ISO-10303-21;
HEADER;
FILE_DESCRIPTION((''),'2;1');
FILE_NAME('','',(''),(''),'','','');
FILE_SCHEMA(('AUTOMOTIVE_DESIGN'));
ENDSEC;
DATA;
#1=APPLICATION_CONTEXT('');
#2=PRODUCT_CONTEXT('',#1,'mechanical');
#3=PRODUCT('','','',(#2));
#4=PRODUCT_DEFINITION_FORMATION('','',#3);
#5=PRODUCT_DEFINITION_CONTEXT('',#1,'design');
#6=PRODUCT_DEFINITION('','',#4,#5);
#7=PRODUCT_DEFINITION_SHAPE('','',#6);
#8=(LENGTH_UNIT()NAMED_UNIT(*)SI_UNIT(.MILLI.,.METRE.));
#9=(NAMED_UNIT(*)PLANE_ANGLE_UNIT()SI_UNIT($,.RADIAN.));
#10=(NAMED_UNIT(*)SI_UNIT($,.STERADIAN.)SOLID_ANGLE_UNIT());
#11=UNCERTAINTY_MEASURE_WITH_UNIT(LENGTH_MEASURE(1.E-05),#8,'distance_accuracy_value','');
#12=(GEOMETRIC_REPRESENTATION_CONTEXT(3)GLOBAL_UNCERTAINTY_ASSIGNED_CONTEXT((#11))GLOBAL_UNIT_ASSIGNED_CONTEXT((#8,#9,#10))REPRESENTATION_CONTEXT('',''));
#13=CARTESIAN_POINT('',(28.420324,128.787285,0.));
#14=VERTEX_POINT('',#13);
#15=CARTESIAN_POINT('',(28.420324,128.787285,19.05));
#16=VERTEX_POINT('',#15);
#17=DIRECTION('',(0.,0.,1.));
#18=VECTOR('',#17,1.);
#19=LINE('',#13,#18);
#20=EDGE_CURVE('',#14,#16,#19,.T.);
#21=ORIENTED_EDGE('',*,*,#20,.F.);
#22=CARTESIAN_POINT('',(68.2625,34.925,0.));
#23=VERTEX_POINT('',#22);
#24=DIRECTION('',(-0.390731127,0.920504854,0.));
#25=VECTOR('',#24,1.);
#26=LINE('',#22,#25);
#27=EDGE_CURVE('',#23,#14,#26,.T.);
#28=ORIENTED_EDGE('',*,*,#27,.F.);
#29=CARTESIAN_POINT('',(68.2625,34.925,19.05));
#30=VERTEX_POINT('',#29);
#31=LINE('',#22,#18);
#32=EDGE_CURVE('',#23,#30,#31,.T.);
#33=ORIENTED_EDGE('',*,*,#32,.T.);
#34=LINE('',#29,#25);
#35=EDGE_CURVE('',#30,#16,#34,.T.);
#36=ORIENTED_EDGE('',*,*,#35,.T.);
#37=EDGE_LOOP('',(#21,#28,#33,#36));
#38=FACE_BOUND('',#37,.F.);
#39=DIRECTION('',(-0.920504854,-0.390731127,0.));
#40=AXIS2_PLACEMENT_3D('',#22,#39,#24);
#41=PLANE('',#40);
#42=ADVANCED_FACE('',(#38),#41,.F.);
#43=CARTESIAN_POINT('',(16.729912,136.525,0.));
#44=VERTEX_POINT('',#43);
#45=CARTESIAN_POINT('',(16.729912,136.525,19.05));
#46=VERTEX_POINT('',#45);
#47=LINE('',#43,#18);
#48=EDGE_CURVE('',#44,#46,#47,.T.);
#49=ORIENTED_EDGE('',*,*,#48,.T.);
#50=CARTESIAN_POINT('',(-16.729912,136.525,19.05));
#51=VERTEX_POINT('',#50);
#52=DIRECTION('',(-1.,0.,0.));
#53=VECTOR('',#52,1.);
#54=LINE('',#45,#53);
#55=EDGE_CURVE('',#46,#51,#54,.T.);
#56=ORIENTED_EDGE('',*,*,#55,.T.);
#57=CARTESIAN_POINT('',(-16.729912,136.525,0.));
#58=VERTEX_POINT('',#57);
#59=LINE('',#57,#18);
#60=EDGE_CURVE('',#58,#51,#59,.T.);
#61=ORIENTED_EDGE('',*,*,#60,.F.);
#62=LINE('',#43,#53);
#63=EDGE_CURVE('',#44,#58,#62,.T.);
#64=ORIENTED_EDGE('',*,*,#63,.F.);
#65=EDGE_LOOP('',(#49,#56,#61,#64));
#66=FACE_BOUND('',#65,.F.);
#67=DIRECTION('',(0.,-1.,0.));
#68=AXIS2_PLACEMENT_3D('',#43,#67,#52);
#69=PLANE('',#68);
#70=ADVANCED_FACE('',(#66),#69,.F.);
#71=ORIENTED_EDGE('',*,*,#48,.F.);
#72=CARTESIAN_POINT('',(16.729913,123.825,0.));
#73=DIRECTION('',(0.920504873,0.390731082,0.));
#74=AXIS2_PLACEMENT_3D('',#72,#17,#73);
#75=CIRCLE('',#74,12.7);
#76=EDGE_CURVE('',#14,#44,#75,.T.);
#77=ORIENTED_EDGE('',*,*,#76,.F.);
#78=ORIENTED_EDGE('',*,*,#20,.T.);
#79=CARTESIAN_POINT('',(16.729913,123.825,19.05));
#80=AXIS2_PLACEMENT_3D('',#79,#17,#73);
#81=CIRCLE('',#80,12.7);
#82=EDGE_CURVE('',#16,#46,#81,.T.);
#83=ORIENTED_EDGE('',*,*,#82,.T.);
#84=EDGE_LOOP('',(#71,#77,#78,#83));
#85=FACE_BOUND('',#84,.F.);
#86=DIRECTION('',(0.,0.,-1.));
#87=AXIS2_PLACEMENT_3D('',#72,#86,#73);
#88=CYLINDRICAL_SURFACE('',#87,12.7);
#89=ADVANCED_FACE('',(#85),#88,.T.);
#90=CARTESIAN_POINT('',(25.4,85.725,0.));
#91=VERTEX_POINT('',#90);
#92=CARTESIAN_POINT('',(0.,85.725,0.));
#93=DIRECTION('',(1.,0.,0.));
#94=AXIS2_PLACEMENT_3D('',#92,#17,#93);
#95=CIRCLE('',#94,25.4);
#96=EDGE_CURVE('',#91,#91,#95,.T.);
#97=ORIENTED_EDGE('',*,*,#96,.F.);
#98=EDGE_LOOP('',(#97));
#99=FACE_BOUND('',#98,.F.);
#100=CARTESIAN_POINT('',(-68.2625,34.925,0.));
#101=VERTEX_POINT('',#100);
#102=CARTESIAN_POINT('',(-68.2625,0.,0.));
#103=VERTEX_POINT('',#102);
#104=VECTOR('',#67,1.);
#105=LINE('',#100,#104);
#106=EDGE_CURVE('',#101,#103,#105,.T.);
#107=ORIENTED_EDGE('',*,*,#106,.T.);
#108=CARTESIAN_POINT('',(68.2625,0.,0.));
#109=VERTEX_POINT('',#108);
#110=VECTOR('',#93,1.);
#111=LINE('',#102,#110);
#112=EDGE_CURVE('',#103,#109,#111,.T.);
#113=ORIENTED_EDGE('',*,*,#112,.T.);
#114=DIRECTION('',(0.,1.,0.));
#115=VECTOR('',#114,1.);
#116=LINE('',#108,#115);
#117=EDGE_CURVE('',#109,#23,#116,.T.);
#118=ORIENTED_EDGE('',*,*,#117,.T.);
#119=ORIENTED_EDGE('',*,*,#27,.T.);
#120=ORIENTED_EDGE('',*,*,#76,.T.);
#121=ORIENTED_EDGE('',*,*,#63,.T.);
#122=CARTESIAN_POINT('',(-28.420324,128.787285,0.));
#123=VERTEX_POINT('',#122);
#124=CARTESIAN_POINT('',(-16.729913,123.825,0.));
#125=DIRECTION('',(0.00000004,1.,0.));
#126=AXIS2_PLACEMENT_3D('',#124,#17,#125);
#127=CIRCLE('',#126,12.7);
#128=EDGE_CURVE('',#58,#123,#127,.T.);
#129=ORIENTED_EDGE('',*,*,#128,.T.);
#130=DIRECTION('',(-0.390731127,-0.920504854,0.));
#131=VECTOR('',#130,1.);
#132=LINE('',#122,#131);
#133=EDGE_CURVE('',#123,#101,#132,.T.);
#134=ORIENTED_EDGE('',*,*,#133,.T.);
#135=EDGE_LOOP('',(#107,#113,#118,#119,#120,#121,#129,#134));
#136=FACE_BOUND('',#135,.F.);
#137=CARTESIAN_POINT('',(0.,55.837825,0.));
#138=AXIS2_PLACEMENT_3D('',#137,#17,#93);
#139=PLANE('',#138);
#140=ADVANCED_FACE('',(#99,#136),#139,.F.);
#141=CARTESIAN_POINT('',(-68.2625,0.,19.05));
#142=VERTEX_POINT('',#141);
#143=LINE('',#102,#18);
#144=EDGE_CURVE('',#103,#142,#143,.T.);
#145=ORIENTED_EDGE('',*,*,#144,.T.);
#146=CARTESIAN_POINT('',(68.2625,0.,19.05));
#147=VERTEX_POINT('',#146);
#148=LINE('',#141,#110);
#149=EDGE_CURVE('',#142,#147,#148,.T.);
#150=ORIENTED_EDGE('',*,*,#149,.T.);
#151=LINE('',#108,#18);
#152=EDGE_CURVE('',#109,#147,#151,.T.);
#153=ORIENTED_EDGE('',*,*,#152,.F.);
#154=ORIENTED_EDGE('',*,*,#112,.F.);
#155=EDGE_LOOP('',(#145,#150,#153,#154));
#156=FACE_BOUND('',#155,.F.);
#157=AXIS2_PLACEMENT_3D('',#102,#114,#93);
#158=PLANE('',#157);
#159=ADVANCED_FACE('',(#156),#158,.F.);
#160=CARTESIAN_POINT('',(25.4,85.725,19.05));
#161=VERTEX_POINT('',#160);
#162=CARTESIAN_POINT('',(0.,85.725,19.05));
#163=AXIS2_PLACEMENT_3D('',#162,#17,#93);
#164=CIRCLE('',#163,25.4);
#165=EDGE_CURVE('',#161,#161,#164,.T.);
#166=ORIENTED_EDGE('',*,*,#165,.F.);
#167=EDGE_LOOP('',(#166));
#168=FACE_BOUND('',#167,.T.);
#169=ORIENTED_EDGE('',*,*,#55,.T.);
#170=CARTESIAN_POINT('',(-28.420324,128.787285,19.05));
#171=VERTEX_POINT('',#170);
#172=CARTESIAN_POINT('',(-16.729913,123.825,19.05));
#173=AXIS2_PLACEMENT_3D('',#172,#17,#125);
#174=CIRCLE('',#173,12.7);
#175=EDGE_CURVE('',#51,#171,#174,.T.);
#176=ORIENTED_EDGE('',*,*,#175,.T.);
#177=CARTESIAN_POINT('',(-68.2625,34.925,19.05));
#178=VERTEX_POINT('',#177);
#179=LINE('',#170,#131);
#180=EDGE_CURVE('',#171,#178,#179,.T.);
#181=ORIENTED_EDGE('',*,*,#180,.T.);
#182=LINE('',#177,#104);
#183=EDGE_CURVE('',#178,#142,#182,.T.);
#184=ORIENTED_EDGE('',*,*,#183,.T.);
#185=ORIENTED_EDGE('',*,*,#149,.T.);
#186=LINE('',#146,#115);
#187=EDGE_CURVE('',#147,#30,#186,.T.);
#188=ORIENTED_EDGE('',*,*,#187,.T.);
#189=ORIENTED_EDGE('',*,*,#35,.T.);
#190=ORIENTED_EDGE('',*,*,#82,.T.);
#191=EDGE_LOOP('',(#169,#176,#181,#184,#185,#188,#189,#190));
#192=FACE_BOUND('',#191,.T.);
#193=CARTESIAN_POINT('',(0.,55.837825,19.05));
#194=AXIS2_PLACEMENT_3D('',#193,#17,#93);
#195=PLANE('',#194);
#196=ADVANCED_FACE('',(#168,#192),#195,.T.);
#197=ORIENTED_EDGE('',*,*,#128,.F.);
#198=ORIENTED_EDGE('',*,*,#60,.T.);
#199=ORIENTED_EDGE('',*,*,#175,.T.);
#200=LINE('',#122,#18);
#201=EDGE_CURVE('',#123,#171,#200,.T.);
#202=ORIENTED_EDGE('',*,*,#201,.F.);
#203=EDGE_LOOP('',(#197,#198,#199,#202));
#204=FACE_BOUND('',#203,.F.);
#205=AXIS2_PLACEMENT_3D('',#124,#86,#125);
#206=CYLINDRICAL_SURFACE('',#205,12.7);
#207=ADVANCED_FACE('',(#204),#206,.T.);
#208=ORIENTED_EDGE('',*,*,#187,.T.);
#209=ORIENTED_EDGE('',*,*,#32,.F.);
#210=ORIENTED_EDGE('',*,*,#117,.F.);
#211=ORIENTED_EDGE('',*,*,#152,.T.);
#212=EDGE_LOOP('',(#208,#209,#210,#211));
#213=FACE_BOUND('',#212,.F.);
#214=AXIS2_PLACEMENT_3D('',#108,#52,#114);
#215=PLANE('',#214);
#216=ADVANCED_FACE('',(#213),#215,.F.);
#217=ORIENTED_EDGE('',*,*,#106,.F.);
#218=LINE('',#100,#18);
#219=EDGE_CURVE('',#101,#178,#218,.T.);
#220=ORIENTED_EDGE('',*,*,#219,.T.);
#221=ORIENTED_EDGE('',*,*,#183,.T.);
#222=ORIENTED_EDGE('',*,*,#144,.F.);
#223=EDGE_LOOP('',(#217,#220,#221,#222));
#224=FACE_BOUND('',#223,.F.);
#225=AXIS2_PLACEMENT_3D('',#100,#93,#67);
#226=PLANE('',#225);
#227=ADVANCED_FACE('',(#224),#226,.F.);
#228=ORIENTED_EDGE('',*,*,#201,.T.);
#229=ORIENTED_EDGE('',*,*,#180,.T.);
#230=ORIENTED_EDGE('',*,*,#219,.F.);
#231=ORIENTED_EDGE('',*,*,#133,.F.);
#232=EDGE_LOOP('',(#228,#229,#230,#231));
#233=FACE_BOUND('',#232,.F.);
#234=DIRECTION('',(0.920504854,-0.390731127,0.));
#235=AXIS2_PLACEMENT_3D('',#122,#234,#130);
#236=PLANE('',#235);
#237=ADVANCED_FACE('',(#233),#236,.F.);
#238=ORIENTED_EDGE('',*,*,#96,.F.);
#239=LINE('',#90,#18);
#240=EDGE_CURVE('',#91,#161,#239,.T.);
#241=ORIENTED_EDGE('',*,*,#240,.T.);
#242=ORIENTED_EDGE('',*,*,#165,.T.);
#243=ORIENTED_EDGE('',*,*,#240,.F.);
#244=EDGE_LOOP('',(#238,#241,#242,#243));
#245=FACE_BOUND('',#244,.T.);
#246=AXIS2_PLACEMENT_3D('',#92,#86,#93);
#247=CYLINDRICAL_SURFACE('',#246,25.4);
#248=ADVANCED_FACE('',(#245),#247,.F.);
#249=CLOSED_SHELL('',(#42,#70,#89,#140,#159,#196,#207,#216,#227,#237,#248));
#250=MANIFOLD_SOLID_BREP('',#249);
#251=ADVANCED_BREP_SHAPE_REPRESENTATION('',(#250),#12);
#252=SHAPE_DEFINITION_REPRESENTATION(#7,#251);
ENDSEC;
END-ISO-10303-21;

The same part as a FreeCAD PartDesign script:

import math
import FreeCAD as App
import Part
import Sketcher
from FreeCAD import Vector
Q = App.Units.Quantity

doc = App.newDocument("Part")
params = doc.addObject("Spreadsheet::Sheet", "Params")
for row, (alias, value) in enumerate([
    ("sketch1_diameter", "2 in"),
    ("sketch1_radius", "0.5 in"),
    ("sketch1_width", "5.375 in"),
    ("sketch1_height", "1.375 in"),
    ("pad1_length", "0.75 in"),
], start=1):
    params.set(f"A{row}", alias)
    params.set(f"B{row}", "=" + value)
    params.setAlias(f"B{row}", alias)

body = doc.addObject("PartDesign::Body", "Body")

# Sketch on XY plane
sketch1 = body.newObject("Sketcher::SketchObject", "Sketch")
sketch1.AttachmentSupport = (doc.getObject("XY_Plane"), [""])
sketch1.MapMode = "FlatFace"
sketch1.addGeometry([
    Part.LineSegment(Vector(-68, 35, 0), Vector(-68, 0, 0)),  # 0
    Part.LineSegment(Vector(-68, 0, 0), Vector(68, 0, 0)),  # 1
    Part.LineSegment(Vector(68, 0, 0), Vector(68, 35, 0)),  # 2
    Part.LineSegment(Vector(68, 35, 0), Vector(28, 129, 0)),  # 3
    Part.ArcOfCircle(Part.Circle(Vector(17, 124, 0), Vector(0, 0, 1), 13), math.radians(23), math.radians(90)),  # 4
    Part.LineSegment(Vector(17, 137, 0), Vector(-17, 137, 0)),  # 5
    Part.ArcOfCircle(Part.Circle(Vector(-17, 124, 0), Vector(0, 0, 1), 13), math.radians(90), math.radians(157)),  # 6
    Part.LineSegment(Vector(-28, 129, 0), Vector(-68, 35, 0)),  # 7
    Part.Circle(Vector(0, 86, 0), Vector(0, 0, 1), 25),  # 8
], False)
sketch1.addConstraint([
    Sketcher.Constraint("Coincident", 0, 2, 1, 1),
    Sketcher.Constraint("Coincident", 1, 2, 2, 1),
    Sketcher.Constraint("Coincident", 2, 2, 3, 1),
    Sketcher.Constraint("Tangent", 3, 2, 4, 1),
    Sketcher.Constraint("Tangent", 4, 2, 5, 1),
    Sketcher.Constraint("Tangent", 5, 2, 6, 1),
    Sketcher.Constraint("Tangent", 6, 2, 7, 1),
    Sketcher.Constraint("Coincident", 7, 2, 0, 1),
    Sketcher.Constraint("Vertical", 0),
    Sketcher.Constraint("Horizontal", 1),
    Sketcher.Constraint("Vertical", 2),
    Sketcher.Constraint("Horizontal", 5),
    Sketcher.Constraint("Equal", 4, 6),
    Sketcher.Constraint("Symmetric", 0, 2, 1, 2, -1, 1),
    Sketcher.Constraint("Symmetric", 3, 2, 6, 2, -2),
    Sketcher.Constraint("PointOnObject", 8, 3, -2),
    Sketcher.Constraint("Diameter", 8, Q("2 in")),
    Sketcher.Constraint("Radius", 4, Q("0.5 in")),
    Sketcher.Constraint("Angle", 3, Q("113 deg")),
    Sketcher.Constraint("DistanceY", 2, 2, 8, 3, Q("2 in")),
    Sketcher.Constraint("DistanceY", 8, 3, 4, 2, Q("2 in")),
    Sketcher.Constraint("DistanceX", 1, 1, 1, 2, Q("5.375 in")),
    Sketcher.Constraint("DistanceY", 0, 2, 0, 1, Q("1.375 in")),
])
sketch1.setExpression("Constraints[16]", "Params.sketch1_diameter")
sketch1.setExpression("Constraints[17]", "Params.sketch1_radius")
sketch1.setExpression("Constraints[21]", "Params.sketch1_width")
sketch1.setExpression("Constraints[22]", "Params.sketch1_height")
pad1 = body.newObject("PartDesign::Pad", "Pad")
pad1.Profile = sketch1
pad1.setExpression("Length", "Params.pad1_length")

doc.recompute()
